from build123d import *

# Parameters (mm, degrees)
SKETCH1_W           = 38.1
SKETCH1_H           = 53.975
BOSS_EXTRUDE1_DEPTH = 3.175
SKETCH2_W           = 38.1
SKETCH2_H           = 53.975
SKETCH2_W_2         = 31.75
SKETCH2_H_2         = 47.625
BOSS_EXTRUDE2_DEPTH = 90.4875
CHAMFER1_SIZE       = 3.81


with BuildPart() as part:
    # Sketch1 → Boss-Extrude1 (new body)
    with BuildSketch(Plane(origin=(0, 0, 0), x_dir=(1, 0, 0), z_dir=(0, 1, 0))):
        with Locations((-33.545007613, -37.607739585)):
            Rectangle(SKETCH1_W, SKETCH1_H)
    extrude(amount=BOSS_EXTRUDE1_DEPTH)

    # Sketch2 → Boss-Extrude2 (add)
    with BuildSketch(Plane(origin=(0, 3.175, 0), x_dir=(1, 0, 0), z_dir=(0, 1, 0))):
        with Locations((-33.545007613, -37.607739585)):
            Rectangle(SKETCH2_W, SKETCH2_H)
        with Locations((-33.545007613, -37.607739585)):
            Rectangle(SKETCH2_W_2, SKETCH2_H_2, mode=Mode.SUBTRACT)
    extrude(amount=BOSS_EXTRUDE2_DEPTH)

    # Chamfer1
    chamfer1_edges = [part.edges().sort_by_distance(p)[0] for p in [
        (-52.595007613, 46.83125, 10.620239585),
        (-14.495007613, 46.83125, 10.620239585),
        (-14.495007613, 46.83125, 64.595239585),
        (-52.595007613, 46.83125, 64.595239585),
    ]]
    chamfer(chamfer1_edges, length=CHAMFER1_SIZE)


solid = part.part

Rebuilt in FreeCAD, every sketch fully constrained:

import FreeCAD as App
import Part
import Sketcher
Q = App.Units.Quantity


def edges_at(feature, points):
    """Names of the edges that pass closest to the given points."""
    edges = feature.Shape.Edges
    near = lambda p: min(range(len(edges)), key=lambda i: edges[i].distToShape(Part.Vertex(*p))[0])
    return sorted({f"Edge{near(p) + 1}" for p in points})

doc = App.newDocument("Part")
body = doc.addObject("PartDesign::Body", "Body")

# Sketch on XZ plane
sketch1 = body.newObject("Sketcher::SketchObject", "Sketch")
sketch1.AttachmentSupport = (doc.getObject("XZ_Plane"), [""])
sketch1.MapMode = "FlatFace"
sketch1.addGeometry([
    Part.LineSegment(App.Vector(-53, 11, 0), App.Vector(-53, 65, 0)),
    Part.LineSegment(App.Vector(-53, 65, 0), App.Vector(-14, 65, 0)),
    Part.LineSegment(App.Vector(-14, 65, 0), App.Vector(-14, 11, 0)),
    Part.LineSegment(App.Vector(-14, 11, 0), App.Vector(-53, 11, 0)),
], False)
sketch1.addConstraint([
    Sketcher.Constraint("Coincident", 0, 2, 1, 1),
    Sketcher.Constraint("Coincident", 1, 2, 2, 1),
    Sketcher.Constraint("Coincident", 2, 2, 3, 1),
    Sketcher.Constraint("Coincident", 3, 2, 0, 1),
    Sketcher.Constraint("Vertical", 0),
    Sketcher.Constraint("Horizontal", 1),
    Sketcher.Constraint("Vertical", 2),
    Sketcher.Constraint("Horizontal", 3),
    Sketcher.Constraint("DistanceX", 1, 1, 1, 2, Q("1.5 in")),
    Sketcher.Constraint("DistanceY", 0, 1, 0, 2, Q("2.125 in")),
    Sketcher.Constraint("DistanceY", -1, 1, 0, 2, Q("64.59524 mm")),
    Sketcher.Constraint("DistanceX", 0, 2, -1, 1, Q("52.595008 mm")),
])
pad1 = body.newObject("PartDesign::Pad", "Pad")
pad1.Profile = sketch1
pad1.Length = Q("0.125 in")
pad1.Reversed = True

# Sketch on XZ plane
sketch2 = body.newObject("Sketcher::SketchObject", "Sketch001")
sketch2.AttachmentSupport = (doc.getObject("XZ_Plane"), [""])
sketch2.MapMode = "FlatFace"
sketch2.AttachmentOffset = App.Placement(App.Vector(0, 0, -0.125 * 25.4), App.Rotation())
sketch2.addGeometry([
    Part.LineSegment(App.Vector(-53, 11, 0), App.Vector(-53, 65, 0)),  # 0
    Part.LineSegment(App.Vector(-53, 65, 0), App.Vector(-14, 65, 0)),  # 1
    Part.LineSegment(App.Vector(-14, 65, 0), App.Vector(-14, 11, 0)),  # 2
    Part.LineSegment(App.Vector(-14, 11, 0), App.Vector(-53, 11, 0)),  # 3
    Part.LineSegment(App.Vector(-18, 61, 0), App.Vector(-49, 61, 0)),  # 4
    Part.LineSegment(App.Vector(-49, 61, 0), App.Vector(-49, 14, 0)),  # 5
    Part.LineSegment(App.Vector(-49, 14, 0), App.Vector(-18, 14, 0)),  # 6
    Part.LineSegment(App.Vector(-18, 14, 0), App.Vector(-18, 61, 0)),  # 7
], False)
sketch2.addConstraint([
    Sketcher.Constraint("Coincident", 0, 2, 1, 1),
    Sketcher.Constraint("Coincident", 1, 2, 2, 1),
    Sketcher.Constraint("Coincident", 2, 2, 3, 1),
    Sketcher.Constraint("Coincident", 3, 2, 0, 1),
    Sketcher.Constraint("Coincident", 4, 2, 5, 1),
    Sketcher.Constraint("Coincident", 5, 2, 6, 1),
    Sketcher.Constraint("Coincident", 6, 2, 7, 1),
    Sketcher.Constraint("Coincident", 7, 2, 4, 1),
    Sketcher.Constraint("Vertical", 0),
    Sketcher.Constraint("Horizontal", 1),
    Sketcher.Constraint("Vertical", 2),
    Sketcher.Constraint("Horizontal", 3),
    Sketcher.Constraint("Horizontal", 4),
    Sketcher.Constraint("Vertical", 5),
    Sketcher.Constraint("Horizontal", 6),
    Sketcher.Constraint("Vertical", 7),
    Sketcher.Constraint("DistanceX", 1, 1, 1, 2, Q("1.5 in")),
    Sketcher.Constraint("DistanceY", 3, 2, 4, 2, Q("2 in")),
    Sketcher.Constraint("DistanceY", 5, 2, 0, 2, Q("2 in")),
    Sketcher.Constraint("DistanceX", 4, 2, 4, 1, Q("1.25 in")),
    Sketcher.Constraint("DistanceY", 0, 1, 0, 2, Q("2.125 in")),
    Sketcher.Constraint("DistanceX", 0, 2, 4, 2, Q("0.125 in")),
    Sketcher.Constraint("DistanceY", -1, 1, 0, 2, Q("64.59524 mm")),
    Sketcher.Constraint("DistanceX", 0, 2, -1, 1, Q("52.595008 mm")),
])
pad2 = body.newObject("PartDesign::Pad", "Pad001")
pad2.Profile = sketch2
pad2.Length = Q("3.5625 in")
pad2.Reversed = True
doc.recompute()

chamfer = body.newObject("PartDesign::Chamfer", "Chamfer")
chamfer.Base = (pad2, edges_at(pad2, [
    (-52.595, 46.831, 10.62),
    (-14.495, 46.831, 10.62),
    (-14.495, 46.831, 64.595),
    (-52.595, 46.831, 64.595),
]))
chamfer.Size = Q("0.15 in")

doc.recompute()
